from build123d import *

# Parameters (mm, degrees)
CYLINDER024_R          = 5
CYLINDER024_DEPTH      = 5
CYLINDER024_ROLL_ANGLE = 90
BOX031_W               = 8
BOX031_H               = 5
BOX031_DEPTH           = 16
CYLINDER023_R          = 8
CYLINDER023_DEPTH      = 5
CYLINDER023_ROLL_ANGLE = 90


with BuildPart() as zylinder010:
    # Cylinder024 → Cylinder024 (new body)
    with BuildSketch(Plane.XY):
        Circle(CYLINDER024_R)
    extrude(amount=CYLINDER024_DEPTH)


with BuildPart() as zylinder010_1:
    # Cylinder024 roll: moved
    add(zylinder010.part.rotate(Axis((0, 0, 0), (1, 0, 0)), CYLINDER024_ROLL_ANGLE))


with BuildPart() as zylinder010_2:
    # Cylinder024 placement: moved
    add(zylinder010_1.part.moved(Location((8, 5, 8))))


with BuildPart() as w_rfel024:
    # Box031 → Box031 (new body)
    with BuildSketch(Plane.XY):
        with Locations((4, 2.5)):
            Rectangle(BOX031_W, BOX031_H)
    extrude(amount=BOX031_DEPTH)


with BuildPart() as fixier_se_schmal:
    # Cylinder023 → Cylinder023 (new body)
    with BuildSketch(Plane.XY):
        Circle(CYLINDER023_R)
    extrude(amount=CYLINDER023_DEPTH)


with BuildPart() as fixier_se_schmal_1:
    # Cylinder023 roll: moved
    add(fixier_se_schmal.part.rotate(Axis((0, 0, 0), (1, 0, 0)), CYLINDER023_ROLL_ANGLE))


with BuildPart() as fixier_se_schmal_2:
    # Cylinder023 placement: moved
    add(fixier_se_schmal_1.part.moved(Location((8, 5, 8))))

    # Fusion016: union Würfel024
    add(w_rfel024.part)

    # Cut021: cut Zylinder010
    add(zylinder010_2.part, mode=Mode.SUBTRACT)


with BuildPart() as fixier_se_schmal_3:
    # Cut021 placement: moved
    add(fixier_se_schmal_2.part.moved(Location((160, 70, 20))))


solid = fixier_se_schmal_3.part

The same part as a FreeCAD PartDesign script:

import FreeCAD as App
import Part
import Sketcher
from FreeCAD import Vector

doc = App.newDocument("Part")
body = doc.addObject("PartDesign::Body", "Body")

sketch1 = body.newObject("Sketcher::SketchObject", "Sketch")
sketch1.AttachmentSupport = (doc.getObject("XY_Plane"), [""])
sketch1.MapMode = "FlatFace"
sketch1.addGeometry(Part.Circle(Vector(0, 0, 0), Vector(0, 0, 1), 5), False)
sketch1.addConstraint([
    Sketcher.Constraint("Coincident", 0, 3, -1, 1),
    Sketcher.Constraint("Diameter", 0, 10.0),
])
pad1 = body.newObject("PartDesign::Pad", "Pad")
pad1.Profile = sketch1
pad1.Length = 5
body2 = doc.addObject("PartDesign::Body", "Body001")
doc.recompute()

body.Placement = App.Placement(Vector(0, 0, 0), App.Rotation(Vector(1, 0, 0), 90))
boolean = body2.newObject("PartDesign::Boolean", "Boolean")
boolean.Type = "Fuse"
boolean.addObjects([body])
body3 = doc.addObject("PartDesign::Body", "Body002")
doc.recompute()

body2.Placement = App.Placement(Vector(8, 5, 8), App.Rotation(Vector(0, 0, 1), 0))
boolean2 = body3.newObject("PartDesign::Boolean", "Boolean001")
boolean2.Type = "Fuse"
boolean2.addObjects([body2])
body4 = doc.addObject("PartDesign::Body", "Body003")

sketch2 = body4.newObject("Sketcher::SketchObject", "Sketch001")
sketch2.AttachmentSupport = (doc.getObject("XY_Plane003"), [""])
sketch2.MapMode = "FlatFace"
sketch2.addGeometry([
    Part.LineSegment(Vector(0, 5, 0), Vector(0, 0, 0)),
    Part.LineSegment(Vector(0, 0, 0), Vector(8, 0, 0)),
    Part.LineSegment(Vector(8, 0, 0), Vector(8, 5, 0)),
    Part.LineSegment(Vector(8, 5, 0), Vector(0, 5, 0)),
], False)
sketch2.addConstraint([
    Sketcher.Constraint("Coincident", 0, 2, 1, 1),
    Sketcher.Constraint("Coincident", 1, 2, 2, 1),
    Sketcher.Constraint("Coincident", 2, 2, 3, 1),
    Sketcher.Constraint("Coincident", 3, 2, 0, 1),
    Sketcher.Constraint("Vertical", 0),
    Sketcher.Constraint("Horizontal", 1),
    Sketcher.Constraint("Vertical", 2),
    Sketcher.Constraint("Horizontal", 3),
    Sketcher.Constraint("Coincident", 0, 2, -1, 1),
    Sketcher.Constraint("DistanceX", 1, 1, 1, 2, 8.0),
    Sketcher.Constraint("DistanceY", 0, 2, 0, 1, 5.0),
])
pad2 = body4.newObject("PartDesign::Pad", "Pad001")
pad2.Profile = sketch2
pad2.Length = 16
body5 = doc.addObject("PartDesign::Body", "Body004")

sketch3 = body5.newObject("Sketcher::SketchObject", "Sketch002")
sketch3.AttachmentSupport = (doc.getObject("XY_Plane004"), [""])
sketch3.MapMode = "FlatFace"
sketch3.addGeometry(Part.Circle(Vector(0, 0, 0), Vector(0, 0, 1), 8), False)
sketch3.addConstraint([
    Sketcher.Constraint("Coincident", 0, 3, -1, 1),
    Sketcher.Constraint("Diameter", 0, 16.0),
])
pad3 = body5.newObject("PartDesign::Pad", "Pad002")
pad3.Profile = sketch3
pad3.Length = 5
body6 = doc.addObject("PartDesign::Body", "Body005")
doc.recompute()

body5.Placement = App.Placement(Vector(0, 0, 0), App.Rotation(Vector(1, 0, 0), 90))
boolean3 = body6.newObject("PartDesign::Boolean", "Boolean002")
boolean3.Type = "Fuse"
boolean3.addObjects([body5])
body7 = doc.addObject("PartDesign::Body", "Body006")
doc.recompute()

body6.Placement = App.Placement(Vector(8, 5, 8), App.Rotation(Vector(0, 0, 1), 0))
boolean4 = body7.newObject("PartDesign::Boolean", "Boolean003")
boolean4.Type = "Fuse"
boolean4.addObjects([body6])
doc.recompute()

boolean5 = body7.newObject("PartDesign::Boolean", "Boolean004")
boolean5.Type = "Fuse"
boolean5.addObjects([body4])
doc.recompute()

boolean6 = body7.newObject("PartDesign::Boolean", "Boolean005")
boolean6.Type = "Cut"
boolean6.addObjects([body3])
body8 = doc.addObject("PartDesign::Body", "Body007")
doc.recompute()

body7.Placement = App.Placement(Vector(160, 70, 20), App.Rotation(Vector(0, 0, 1), 0))
boolean7 = body8.newObject("PartDesign::Boolean", "Boolean006")
boolean7.Type = "Fuse"
boolean7.addObjects([body7])

doc.recompute()
